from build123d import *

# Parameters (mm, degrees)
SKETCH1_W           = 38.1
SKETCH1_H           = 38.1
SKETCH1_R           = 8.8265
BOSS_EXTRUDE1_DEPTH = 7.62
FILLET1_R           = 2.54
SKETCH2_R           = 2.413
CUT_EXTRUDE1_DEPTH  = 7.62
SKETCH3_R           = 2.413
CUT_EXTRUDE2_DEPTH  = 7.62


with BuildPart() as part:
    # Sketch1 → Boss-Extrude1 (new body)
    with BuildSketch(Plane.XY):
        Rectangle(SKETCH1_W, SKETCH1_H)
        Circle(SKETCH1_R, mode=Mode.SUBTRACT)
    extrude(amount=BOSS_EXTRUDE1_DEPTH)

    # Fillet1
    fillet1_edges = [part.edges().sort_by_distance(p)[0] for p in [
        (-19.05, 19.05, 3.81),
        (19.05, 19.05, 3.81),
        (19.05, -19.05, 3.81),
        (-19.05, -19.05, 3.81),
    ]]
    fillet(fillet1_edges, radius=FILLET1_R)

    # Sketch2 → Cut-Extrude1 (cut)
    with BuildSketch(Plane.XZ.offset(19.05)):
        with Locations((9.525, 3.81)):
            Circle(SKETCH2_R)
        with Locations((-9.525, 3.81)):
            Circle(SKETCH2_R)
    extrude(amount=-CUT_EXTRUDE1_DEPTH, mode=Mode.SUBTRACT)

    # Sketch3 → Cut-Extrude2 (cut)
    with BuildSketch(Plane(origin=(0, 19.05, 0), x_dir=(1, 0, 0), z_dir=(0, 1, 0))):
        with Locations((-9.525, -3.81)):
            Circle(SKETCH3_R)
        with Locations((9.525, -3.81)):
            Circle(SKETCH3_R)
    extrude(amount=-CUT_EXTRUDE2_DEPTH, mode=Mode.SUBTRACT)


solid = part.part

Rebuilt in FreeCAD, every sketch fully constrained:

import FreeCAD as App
import Part
import Sketcher

V = App.Vector
Q = App.Units.Quantity


def edges_at(feature, points):
    """Names of the edges that pass closest to the given points."""
    edges = feature.Shape.Edges
    near = lambda p: min(range(len(edges)), key=lambda i: edges[i].distToShape(Part.Vertex(*p))[0])
    return sorted({f"Edge{near(p) + 1}" for p in points})

doc = App.newDocument("Part")
params = doc.addObject("Spreadsheet::Sheet", "Params")
for row, (alias, value) in enumerate([
    ("sketch1_diameter", "0.695 in"),
    ("sketch1_width", "1.5 in"),
    ("pad1_length", "0.3 in"),
    ("fillet_radius", "0.1 in"),
    ("sketch2_diameter", "0.19 in"),
    ("pocket1_length", "0.3 in"),
    ("sketch3_diameter", "0.19 in"),
    ("pocket2_length", "0.3 in"),
], start=1):
    params.set(f"A{row}", alias)
    params.set(f"B{row}", "=" + value)
    params.setAlias(f"B{row}", alias)

body = doc.addObject("PartDesign::Body", "Body")

# Sketch on XY plane
sketch1 = body.newObject("Sketcher::SketchObject", "Sketch")
sketch1.AttachmentSupport = (doc.getObject("XY_Plane"), [""])
sketch1.MapMode = "FlatFace"
sketch1.addGeometry(Part.LineSegment(V(-19, 19, 0), V(-19, -19, 0)), False)
sketch1.addGeometry(Part.LineSegment(V(-19, -19, 0), V(19, -19, 0)), False)
sketch1.addGeometry(Part.LineSegment(V(19, -19, 0), V(19, 19, 0)), False)
sketch1.addGeometry(Part.LineSegment(V(19, 19, 0), V(-19, 19, 0)), False)
sketch1.addGeometry(Part.Circle(V(0, 0, 0), V(0, 0, 1), 9), False)
sketch1.addConstraint(Sketcher.Constraint("Coincident", 0, 2, 1, 1))
sketch1.addConstraint(Sketcher.Constraint("Coincident", 1, 2, 2, 1))
sketch1.addConstraint(Sketcher.Constraint("Coincident", 2, 2, 3, 1))
sketch1.addConstraint(Sketcher.Constraint("Coincident", 3, 2, 0, 1))
sketch1.addConstraint(Sketcher.Constraint("Vertical", 0))
sketch1.addConstraint(Sketcher.Constraint("Horizontal", 1))
sketch1.addConstraint(Sketcher.Constraint("Vertical", 2))
sketch1.addConstraint(Sketcher.Constraint("Horizontal", 3))
sketch1.addConstraint(Sketcher.Constraint("Coincident", 4, 3, -1, 1))
sketch1.addConstraint(Sketcher.Constraint("Symmetric", 0, 2, 2, 2, -1, 1))
sketch1.addConstraint(Sketcher.Constraint("Equal", 3, 0))
sketch1.addConstraint(Sketcher.Constraint("Diameter", 4, Q("0.695 in")))
sketch1.addConstraint(Sketcher.Constraint("DistanceX", 1, 1, 1, 2, Q("1.5 in")))
sketch1.setExpression("Constraints[11]", "Params.sketch1_diameter")
sketch1.setExpression("Constraints[12]", "Params.sketch1_width")
pad1 = body.newObject("PartDesign::Pad", "Pad")
pad1.Profile = sketch1
pad1.setExpression("Length", "Params.pad1_length")
doc.recompute()

fillet = body.newObject("PartDesign::Fillet", "Fillet")
fillet.Base = (pad1, edges_at(pad1, [
    (-19.05, 19.05, 3.81),
    (19.05, 19.05, 3.81),
    (19.05, -19.05, 3.81),
    (-19.05, -19.05, 3.81),
]))
fillet.setExpression("Radius", "Params.fillet_radius")

# Sketch on XZ plane
sketch2 = body.newObject("Sketcher::SketchObject", "Sketch001")
sketch2.AttachmentSupport = (doc.getObject("XZ_Plane"), [""])
sketch2.MapMode = "FlatFace"
sketch2.AttachmentOffset = App.Placement(V(0, 0, 0.75 * 25.4), App.Rotation())
sketch2.addGeometry(Part.Circle(V(9.5, 3.8, 0), V(0, 0, 1), 2.4), False)
sketch2.addGeometry(Part.Circle(V(-9.5, 3.8, 0), V(0, 0, 1), 2.4), False)
sketch2.addConstraint(Sketcher.Constraint("Equal", 0, 1))
sketch2.addConstraint(Sketcher.Constraint("Symmetric", 0, 3, 1, 3, -2))
sketch2.addConstraint(Sketcher.Constraint("Diameter", 0, Q("0.19 in")))
sketch2.addConstraint(Sketcher.Constraint("DistanceY", -1, 1, 0, 3, Q("0.15 in")))
sketch2.addConstraint(Sketcher.Constraint("DistanceX", 1, 3, 0, 3, Q("0.75 in")))
sketch2.setExpression("Constraints[2]", "Params.sketch2_diameter")
pocket1 = body.newObject("PartDesign::Pocket", "Pocket")
pocket1.Profile = sketch2
pocket1.setExpression("Length", "Params.pocket1_length")

# Sketch on XZ plane
sketch3 = body.newObject("Sketcher::SketchObject", "Sketch002")
sketch3.AttachmentSupport = (doc.getObject("XZ_Plane"), [""])
sketch3.MapMode = "FlatFace"
sketch3.AttachmentOffset = App.Placement(V(0, 0, -0.75 * 25.4), App.Rotation())
sketch3.addGeometry(Part.Circle(V(-9.5, 3.8, 0), V(0, 0, 1), 2.4), False)
sketch3.addGeometry(Part.Circle(V(9.5, 3.8, 0), V(0, 0, 1), 2.4), False)
sketch3.addConstraint(Sketcher.Constraint("Equal", 0, 1))
sketch3.addConstraint(Sketcher.Constraint("Symmetric", 0, 3, 1, 3, -2))
sketch3.addConstraint(Sketcher.Constraint("Diameter", 0, Q("0.19 in")))
sketch3.addConstraint(Sketcher.Constraint("DistanceY", -1, 1, 0, 3, Q("0.15 in")))
sketch3.addConstraint(Sketcher.Constraint("DistanceX", 0, 3, 1, 3, Q("0.75 in")))
sketch3.setExpression("Constraints[2]", "Params.sketch3_diameter")
pocket2 = body.newObject("PartDesign::Pocket", "Pocket001")
pocket2.Profile = sketch3
pocket2.setExpression("Length", "Params.pocket2_length")
pocket2.Reversed = True

doc.recompute()
